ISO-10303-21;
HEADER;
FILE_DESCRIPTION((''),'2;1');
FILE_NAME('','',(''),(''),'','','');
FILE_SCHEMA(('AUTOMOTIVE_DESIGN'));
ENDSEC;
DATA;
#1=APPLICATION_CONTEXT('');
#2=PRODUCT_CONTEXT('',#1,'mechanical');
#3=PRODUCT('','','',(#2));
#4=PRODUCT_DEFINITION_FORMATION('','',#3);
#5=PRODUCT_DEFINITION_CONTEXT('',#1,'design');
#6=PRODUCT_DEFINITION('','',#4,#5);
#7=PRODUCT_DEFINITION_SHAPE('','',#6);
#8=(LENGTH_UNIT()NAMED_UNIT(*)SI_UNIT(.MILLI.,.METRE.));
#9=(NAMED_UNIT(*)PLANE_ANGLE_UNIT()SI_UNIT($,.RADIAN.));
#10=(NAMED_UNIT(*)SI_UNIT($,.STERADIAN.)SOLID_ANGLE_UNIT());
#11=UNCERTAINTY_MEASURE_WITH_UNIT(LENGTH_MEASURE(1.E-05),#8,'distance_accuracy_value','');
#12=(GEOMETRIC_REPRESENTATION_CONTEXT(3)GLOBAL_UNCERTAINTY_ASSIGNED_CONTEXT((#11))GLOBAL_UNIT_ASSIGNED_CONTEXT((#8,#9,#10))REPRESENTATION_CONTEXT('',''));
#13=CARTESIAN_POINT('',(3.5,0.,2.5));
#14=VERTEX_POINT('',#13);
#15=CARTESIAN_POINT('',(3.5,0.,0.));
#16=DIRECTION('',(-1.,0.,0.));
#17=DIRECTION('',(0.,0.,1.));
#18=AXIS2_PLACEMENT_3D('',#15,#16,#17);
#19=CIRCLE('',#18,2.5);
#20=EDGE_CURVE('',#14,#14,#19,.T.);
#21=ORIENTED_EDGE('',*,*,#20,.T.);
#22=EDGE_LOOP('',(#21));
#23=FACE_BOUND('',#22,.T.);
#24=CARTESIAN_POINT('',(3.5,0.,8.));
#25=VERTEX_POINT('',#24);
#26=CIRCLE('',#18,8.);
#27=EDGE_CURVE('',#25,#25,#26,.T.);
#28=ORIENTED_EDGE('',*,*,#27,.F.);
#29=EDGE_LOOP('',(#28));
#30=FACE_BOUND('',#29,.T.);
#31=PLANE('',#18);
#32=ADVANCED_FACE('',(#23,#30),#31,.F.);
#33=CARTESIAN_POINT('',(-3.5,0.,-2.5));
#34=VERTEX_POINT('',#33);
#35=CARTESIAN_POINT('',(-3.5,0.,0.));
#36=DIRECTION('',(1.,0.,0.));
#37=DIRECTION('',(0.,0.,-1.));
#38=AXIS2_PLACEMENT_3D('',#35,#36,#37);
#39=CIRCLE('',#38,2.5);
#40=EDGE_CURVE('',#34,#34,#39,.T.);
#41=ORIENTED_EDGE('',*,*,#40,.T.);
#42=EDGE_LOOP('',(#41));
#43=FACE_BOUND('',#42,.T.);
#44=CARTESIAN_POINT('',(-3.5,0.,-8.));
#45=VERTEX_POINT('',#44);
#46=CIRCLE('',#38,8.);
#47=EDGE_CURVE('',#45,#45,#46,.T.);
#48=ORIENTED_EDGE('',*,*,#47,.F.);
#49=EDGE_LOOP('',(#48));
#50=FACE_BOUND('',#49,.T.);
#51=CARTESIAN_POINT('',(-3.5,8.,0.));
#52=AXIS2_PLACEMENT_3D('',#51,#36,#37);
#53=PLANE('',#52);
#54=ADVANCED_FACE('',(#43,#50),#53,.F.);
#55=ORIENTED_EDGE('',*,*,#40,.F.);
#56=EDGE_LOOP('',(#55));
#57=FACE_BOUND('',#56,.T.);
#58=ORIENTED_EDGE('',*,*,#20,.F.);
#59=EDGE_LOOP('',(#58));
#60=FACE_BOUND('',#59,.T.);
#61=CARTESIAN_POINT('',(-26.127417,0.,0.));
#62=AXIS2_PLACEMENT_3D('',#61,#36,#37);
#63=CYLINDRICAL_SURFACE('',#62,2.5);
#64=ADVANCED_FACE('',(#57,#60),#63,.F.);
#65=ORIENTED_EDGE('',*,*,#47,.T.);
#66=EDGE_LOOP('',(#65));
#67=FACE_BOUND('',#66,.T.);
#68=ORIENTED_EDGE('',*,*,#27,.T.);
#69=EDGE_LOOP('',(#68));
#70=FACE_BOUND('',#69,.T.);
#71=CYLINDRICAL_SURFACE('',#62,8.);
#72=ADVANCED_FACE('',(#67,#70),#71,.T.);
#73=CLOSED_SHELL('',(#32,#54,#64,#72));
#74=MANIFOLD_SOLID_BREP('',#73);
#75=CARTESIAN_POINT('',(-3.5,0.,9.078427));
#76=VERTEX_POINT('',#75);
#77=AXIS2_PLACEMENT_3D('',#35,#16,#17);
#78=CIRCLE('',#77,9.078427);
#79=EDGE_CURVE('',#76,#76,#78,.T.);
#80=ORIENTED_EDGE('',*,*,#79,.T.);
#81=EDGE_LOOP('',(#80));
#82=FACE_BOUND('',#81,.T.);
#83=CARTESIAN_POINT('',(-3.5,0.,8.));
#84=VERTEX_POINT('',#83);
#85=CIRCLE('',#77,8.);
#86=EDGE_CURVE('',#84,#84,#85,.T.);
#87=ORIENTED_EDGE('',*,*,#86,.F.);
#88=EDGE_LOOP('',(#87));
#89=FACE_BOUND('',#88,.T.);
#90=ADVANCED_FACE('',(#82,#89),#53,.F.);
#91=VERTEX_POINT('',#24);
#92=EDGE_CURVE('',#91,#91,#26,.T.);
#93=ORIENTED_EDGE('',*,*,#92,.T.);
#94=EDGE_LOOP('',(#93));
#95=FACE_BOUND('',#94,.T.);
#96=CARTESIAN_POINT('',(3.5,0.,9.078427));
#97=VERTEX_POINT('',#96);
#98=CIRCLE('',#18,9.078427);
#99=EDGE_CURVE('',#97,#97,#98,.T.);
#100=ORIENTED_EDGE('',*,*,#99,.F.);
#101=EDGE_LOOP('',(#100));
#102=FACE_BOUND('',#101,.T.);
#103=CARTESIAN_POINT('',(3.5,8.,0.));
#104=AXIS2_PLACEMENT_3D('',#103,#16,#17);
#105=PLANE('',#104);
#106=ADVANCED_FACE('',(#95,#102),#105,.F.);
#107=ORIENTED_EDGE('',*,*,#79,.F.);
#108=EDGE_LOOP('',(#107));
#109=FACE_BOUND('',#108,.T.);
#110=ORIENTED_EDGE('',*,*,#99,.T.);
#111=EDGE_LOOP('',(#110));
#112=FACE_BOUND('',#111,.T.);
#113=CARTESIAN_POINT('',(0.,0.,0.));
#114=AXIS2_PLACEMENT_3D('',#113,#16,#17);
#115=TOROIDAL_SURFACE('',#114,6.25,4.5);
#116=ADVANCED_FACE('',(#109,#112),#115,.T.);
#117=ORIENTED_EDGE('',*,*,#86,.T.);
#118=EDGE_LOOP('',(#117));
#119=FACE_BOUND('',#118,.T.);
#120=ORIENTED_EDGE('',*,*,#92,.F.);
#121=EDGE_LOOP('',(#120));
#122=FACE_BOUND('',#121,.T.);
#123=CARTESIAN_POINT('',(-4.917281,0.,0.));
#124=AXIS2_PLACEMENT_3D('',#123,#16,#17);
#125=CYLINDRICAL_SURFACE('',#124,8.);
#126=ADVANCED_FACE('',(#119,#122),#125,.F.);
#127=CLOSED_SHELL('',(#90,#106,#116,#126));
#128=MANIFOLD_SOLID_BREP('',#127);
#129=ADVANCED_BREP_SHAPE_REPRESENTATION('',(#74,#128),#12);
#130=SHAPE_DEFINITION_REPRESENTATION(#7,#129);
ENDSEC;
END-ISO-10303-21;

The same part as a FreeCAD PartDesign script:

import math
import FreeCAD as App
import Part
import Sketcher
from FreeCAD import Vector

doc = App.newDocument("Part")
body = doc.addObject("PartDesign::Body", "Body")

sketch1 = body.newObject("Sketcher::SketchObject", "Sketch")
sketch1.AttachmentSupport = (doc.getObject("XY_Plane"), [""])
sketch1.MapMode = "FlatFace"
sketch1.addGeometry([
    Part.LineSegment(Vector(-3.5, 8, 0), Vector(3.5, 8, 0)),
    Part.LineSegment(Vector(3.5, 8, 0), Vector(3.5, 9.1, 0)),
    Part.ArcOfCircle(Part.Circle(Vector(0, 6.2, 0), Vector(0, 0, 1), 4.5), math.radians(39), math.radians(141)),
    Part.LineSegment(Vector(-3.5, 9.1, 0), Vector(-3.5, 8, 0)),
], False)
sketch1.addConstraint([
    Sketcher.Constraint("Coincident", 0, 2, 1, 1),
    Sketcher.Constraint("Coincident", 1, 2, 2, 1),
    Sketcher.Constraint("Coincident", 2, 2, 3, 1),
    Sketcher.Constraint("Coincident", 3, 2, 0, 1),
    Sketcher.Constraint("Horizontal", 0),
    Sketcher.Constraint("Vertical", 1),
    Sketcher.Constraint("Vertical", 3),
    Sketcher.Constraint("Symmetric", 1, 2, 2, 2, -2),
    Sketcher.Constraint("Radius", 2, 4.5),
    Sketcher.Constraint("DistanceX", 0, 1, 0, 2, 7.0),
    Sketcher.Constraint("DistanceY", -1, 1, 0, 2, 8.0),
    Sketcher.Constraint("DistanceY", -1, 1, 2, 3, 6.25),
])
revolution = body.newObject("PartDesign::Revolution", "Revolution")
revolution.Profile = sketch1
revolution.ReferenceAxis = (sketch1, ["H_Axis"])
revolution.Angle = 360
body2 = doc.addObject("PartDesign::Body", "Body001")

sketch2 = body2.newObject("Sketcher::SketchObject", "Sketch001")
sketch2.AttachmentSupport = (doc.getObject("YZ_Plane001"), [""])
sketch2.MapMode = "FlatFace"
sketch2.AttachmentOffset = App.Placement(Vector(0, 0, 3.5), App.Rotation())
sketch2.addGeometry([
    Part.Circle(Vector(0, 0, 0), Vector(0, 0, 1), 8),
    Part.Circle(Vector(0, 0, 0), Vector(0, 0, 1), 2.5),
], False)
sketch2.addConstraint([
    Sketcher.Constraint("Coincident", 0, 3, -1, 1),
    Sketcher.Constraint("Coincident", 1, 3, -1, 1),
    Sketcher.Constraint("Diameter", 0, 16.0),
    Sketcher.Constraint("Diameter", 1, 5.0),
])
pad1 = body2.newObject("PartDesign::Pad", "Pad")
pad1.Profile = sketch2
pad1.Length = 7
pad1.Reversed = True

doc.recompute()
